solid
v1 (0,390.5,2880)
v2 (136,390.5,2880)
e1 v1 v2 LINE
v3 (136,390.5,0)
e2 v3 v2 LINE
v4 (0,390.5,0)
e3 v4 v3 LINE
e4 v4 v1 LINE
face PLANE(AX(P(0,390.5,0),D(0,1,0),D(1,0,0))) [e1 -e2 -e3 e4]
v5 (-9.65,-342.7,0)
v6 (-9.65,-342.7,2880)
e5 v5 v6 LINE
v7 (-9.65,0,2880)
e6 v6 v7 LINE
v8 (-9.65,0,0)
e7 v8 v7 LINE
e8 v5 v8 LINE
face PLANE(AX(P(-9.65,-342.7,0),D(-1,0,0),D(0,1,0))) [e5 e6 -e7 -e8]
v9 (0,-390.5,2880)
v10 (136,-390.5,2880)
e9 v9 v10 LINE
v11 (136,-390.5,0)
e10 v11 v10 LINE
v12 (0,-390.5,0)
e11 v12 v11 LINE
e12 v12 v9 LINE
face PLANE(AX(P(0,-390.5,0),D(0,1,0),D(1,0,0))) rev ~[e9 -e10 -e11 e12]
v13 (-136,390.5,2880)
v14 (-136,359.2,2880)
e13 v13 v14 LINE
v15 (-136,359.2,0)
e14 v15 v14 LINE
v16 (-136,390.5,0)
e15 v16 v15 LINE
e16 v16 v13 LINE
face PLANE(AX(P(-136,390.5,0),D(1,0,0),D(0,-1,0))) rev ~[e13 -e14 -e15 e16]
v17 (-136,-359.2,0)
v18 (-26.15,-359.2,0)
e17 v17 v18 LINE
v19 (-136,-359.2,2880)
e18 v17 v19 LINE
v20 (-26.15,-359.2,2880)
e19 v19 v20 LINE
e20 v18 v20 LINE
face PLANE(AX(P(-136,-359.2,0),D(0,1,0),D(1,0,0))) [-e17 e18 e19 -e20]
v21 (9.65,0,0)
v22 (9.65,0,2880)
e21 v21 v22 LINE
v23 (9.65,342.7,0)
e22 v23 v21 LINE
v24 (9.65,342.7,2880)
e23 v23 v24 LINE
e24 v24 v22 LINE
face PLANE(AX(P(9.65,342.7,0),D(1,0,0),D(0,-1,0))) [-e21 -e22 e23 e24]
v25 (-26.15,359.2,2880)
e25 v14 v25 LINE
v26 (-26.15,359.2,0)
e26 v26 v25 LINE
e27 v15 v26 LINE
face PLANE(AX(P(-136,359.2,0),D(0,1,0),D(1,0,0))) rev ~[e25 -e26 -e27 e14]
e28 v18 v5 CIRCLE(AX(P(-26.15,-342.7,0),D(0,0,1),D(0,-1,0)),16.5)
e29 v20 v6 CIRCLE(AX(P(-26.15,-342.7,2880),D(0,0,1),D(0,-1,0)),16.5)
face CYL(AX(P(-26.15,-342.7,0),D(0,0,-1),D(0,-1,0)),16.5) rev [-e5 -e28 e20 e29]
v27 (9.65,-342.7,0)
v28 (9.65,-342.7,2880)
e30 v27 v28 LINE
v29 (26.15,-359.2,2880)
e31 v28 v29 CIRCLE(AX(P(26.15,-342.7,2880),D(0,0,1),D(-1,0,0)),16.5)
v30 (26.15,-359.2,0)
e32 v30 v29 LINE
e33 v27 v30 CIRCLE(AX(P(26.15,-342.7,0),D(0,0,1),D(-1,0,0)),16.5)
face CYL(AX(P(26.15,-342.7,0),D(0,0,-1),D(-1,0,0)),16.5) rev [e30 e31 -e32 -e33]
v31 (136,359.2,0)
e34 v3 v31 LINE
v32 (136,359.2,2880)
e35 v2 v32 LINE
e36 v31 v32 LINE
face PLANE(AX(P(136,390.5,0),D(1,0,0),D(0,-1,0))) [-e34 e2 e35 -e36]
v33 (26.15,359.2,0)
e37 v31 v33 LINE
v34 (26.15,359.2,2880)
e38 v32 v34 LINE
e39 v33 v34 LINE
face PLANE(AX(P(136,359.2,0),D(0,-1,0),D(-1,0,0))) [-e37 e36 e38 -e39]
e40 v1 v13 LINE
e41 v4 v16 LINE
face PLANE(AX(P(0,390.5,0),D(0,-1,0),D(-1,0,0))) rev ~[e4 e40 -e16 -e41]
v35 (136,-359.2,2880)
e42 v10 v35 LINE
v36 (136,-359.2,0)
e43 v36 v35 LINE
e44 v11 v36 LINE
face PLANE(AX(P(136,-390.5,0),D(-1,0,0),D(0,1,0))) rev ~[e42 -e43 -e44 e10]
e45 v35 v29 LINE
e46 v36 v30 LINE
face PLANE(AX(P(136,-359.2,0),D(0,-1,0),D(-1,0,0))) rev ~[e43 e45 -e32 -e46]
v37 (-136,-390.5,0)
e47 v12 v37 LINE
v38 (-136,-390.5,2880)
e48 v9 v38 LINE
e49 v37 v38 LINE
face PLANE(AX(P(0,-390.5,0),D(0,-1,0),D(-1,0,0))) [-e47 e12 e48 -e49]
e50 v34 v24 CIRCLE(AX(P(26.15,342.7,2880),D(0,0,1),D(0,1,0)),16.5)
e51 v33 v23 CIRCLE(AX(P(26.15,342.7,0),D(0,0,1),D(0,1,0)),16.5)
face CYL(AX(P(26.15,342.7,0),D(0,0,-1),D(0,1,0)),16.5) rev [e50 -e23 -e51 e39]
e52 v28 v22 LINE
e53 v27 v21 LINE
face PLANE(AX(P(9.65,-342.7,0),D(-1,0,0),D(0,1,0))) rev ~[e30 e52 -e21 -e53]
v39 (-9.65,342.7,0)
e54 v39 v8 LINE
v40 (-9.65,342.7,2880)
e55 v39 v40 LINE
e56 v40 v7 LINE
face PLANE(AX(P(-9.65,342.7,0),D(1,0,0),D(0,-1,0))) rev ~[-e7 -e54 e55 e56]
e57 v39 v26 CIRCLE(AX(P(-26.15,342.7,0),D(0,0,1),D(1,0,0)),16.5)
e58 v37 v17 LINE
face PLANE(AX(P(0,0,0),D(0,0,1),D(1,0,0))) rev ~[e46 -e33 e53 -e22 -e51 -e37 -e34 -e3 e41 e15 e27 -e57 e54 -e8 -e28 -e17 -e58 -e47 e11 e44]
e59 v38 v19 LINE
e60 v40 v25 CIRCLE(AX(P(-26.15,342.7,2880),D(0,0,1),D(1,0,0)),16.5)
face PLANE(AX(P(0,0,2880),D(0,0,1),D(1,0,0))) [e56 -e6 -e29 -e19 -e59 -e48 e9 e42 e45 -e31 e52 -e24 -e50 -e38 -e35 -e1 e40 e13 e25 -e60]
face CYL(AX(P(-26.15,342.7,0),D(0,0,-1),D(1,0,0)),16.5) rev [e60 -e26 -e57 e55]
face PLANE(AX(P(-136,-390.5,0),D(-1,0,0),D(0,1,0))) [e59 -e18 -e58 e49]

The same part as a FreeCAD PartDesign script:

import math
import FreeCAD as App
import Part
import Sketcher
Q = App.Units.Quantity

doc = App.newDocument("Part")
params = doc.addObject("Spreadsheet::Sheet", "Params")
for row, (alias, value) in enumerate([
    ("sketch1_radius", "16.5 mm"),
    ("sketch1_height", "31.3 mm"),
    ("pad1_length", "2880 mm"),
], start=1):
    params.set(f"A{row}", alias)
    params.set(f"B{row}", "=" + value)
    params.setAlias(f"B{row}", alias)

body = doc.addObject("PartDesign::Body", "Body")

sketch1 = body.newObject("Sketcher::SketchObject", "Sketch")
sketch1.AttachmentSupport = (doc.getObject("XY_Plane"), [""])
sketch1.MapMode = "FlatFace"
sketch1.addGeometry(Part.LineSegment(App.Vector(-136, -359, 0), App.Vector(-136, -390, 0)), False)
sketch1.addGeometry(Part.LineSegment(App.Vector(-136, -390, 0), App.Vector(136, -390, 0)), False)
sketch1.addGeometry(Part.LineSegment(App.Vector(136, -390, 0), App.Vector(136, -359, 0)), False)
sketch1.addGeometry(Part.LineSegment(App.Vector(136, -359, 0), App.Vector(26, -359, 0)), False)
sketch1.addGeometry(Part.ArcOfCircle(Part.Circle(App.Vector(26, -343, 0), App.Vector(0, 0, 1), 16), math.radians(180), math.radians(270)), False)
sketch1.addGeometry(Part.LineSegment(App.Vector(10, -343, 0), App.Vector(10, 343, 0)), False)
sketch1.addGeometry(Part.ArcOfCircle(Part.Circle(App.Vector(26, 343, 0), App.Vector(0, 0, 1), 16), math.radians(90), math.radians(180)), False)
sketch1.addGeometry(Part.LineSegment(App.Vector(26, 359, 0), App.Vector(136, 359, 0)), False)
sketch1.addGeometry(Part.LineSegment(App.Vector(136, 359, 0), App.Vector(136, 390, 0)), False)
sketch1.addGeometry(Part.LineSegment(App.Vector(136, 390, 0), App.Vector(-136, 390, 0)), False)
sketch1.addGeometry(Part.LineSegment(App.Vector(-136, 390, 0), App.Vector(-136, 359, 0)), False)
sketch1.addGeometry(Part.LineSegment(App.Vector(-136, 359, 0), App.Vector(-26, 359, 0)), False)
sketch1.addGeometry(Part.ArcOfCircle(Part.Circle(App.Vector(-26, 343, 0), App.Vector(0, 0, 1), 16), math.radians(0), math.radians(90)), False)
sketch1.addGeometry(Part.LineSegment(App.Vector(-10, 343, 0), App.Vector(-10, -343, 0)), False)
sketch1.addGeometry(Part.ArcOfCircle(Part.Circle(App.Vector(-26, -343, 0), App.Vector(0, 0, 1), 16), math.radians(-90), math.radians(0)), False)
sketch1.addGeometry(Part.LineSegment(App.Vector(-26, -359, 0), App.Vector(-136, -359, 0)), False)
sketch1.addConstraint(Sketcher.Constraint("Coincident", 0, 2, 1, 1))
sketch1.addConstraint(Sketcher.Constraint("Coincident", 1, 2, 2, 1))
sketch1.addConstraint(Sketcher.Constraint("Coincident", 2, 2, 3, 1))
sketch1.addConstraint(Sketcher.Constraint("Tangent", 3, 2, 4, 2))
sketch1.addConstraint(Sketcher.Constraint("Tangent", 4, 1, 5, 1))
sketch1.addConstraint(Sketcher.Constraint("Tangent", 5, 2, 6, 2))
sketch1.addConstraint(Sketcher.Constraint("Tangent", 6, 1, 7, 1))
sketch1.addConstraint(Sketcher.Constraint("Coincident", 7, 2, 8, 1))
sketch1.addConstraint(Sketcher.Constraint("Coincident", 8, 2, 9, 1))
sketch1.addConstraint(Sketcher.Constraint("Coincident", 9, 2, 10, 1))
sketch1.addConstraint(Sketcher.Constraint("Coincident", 10, 2, 11, 1))
sketch1.addConstraint(Sketcher.Constraint("Tangent", 11, 2, 12, 2))
sketch1.addConstraint(Sketcher.Constraint("Tangent", 12, 1, 13, 1))
sketch1.addConstraint(Sketcher.Constraint("Tangent", 13, 2, 14, 2))
sketch1.addConstraint(Sketcher.Constraint("Tangent", 14, 1, 15, 1))
sketch1.addConstraint(Sketcher.Constraint("Coincident", 15, 2, 0, 1))
sketch1.addConstraint(Sketcher.Constraint("Vertical", 0))
sketch1.addConstraint(Sketcher.Constraint("Horizontal", 1))
sketch1.addConstraint(Sketcher.Constraint("Vertical", 2))
sketch1.addConstraint(Sketcher.Constraint("Horizontal", 3))
sketch1.addConstraint(Sketcher.Constraint("Vertical", 5))
sketch1.addConstraint(Sketcher.Constraint("Horizontal", 7))
sketch1.addConstraint(Sketcher.Constraint("Vertical", 8))
sketch1.addConstraint(Sketcher.Constraint("Horizontal", 9))
sketch1.addConstraint(Sketcher.Constraint("Vertical", 10))
sketch1.addConstraint(Sketcher.Constraint("Horizontal", 11))
sketch1.addConstraint(Sketcher.Constraint("Vertical", 13))
sketch1.addConstraint(Sketcher.Constraint("Horizontal", 15))
sketch1.addConstraint(Sketcher.Constraint("Equal", 4, 6))
sketch1.addConstraint(Sketcher.Constraint("Equal", 6, 12))
sketch1.addConstraint(Sketcher.Constraint("Equal", 12, 14))
sketch1.addConstraint(Sketcher.Constraint("Symmetric", 4, 3, 12, 3, -1, 1))
sketch1.addConstraint(Sketcher.Constraint("Symmetric", 0, 2, 8, 2, -1, 1))
sketch1.addConstraint(Sketcher.Constraint("Symmetric", 7, 2, 10, 2, -2))
sketch1.addConstraint(Sketcher.Constraint("Symmetric", 2, 2, 15, 2, -2))
sketch1.addConstraint(Sketcher.Constraint("Radius", 4, Q("16.5 mm")))
sketch1.addConstraint(Sketcher.Constraint("DistanceY", 0, 2, 0, 1, Q("31.3 mm")))
sketch1.addConstraint(Sketcher.Constraint("DistanceX", 0, 2, -1, 1, Q("136 mm")))
sketch1.addConstraint(Sketcher.Constraint("DistanceY", 0, 2, -1, 1, Q("390.5 mm")))
sketch1.addConstraint(Sketcher.Constraint("DistanceX", -1, 1, 4, 1, Q("9.65 mm")))
sketch1.setExpression("Constraints[35]", "Params.sketch1_radius")
sketch1.setExpression("Constraints[36]", "Params.sketch1_height")
pad1 = body.newObject("PartDesign::Pad", "Pad")
pad1.Profile = sketch1
pad1.setExpression("Length", "Params.pad1_length")

doc.recompute()
